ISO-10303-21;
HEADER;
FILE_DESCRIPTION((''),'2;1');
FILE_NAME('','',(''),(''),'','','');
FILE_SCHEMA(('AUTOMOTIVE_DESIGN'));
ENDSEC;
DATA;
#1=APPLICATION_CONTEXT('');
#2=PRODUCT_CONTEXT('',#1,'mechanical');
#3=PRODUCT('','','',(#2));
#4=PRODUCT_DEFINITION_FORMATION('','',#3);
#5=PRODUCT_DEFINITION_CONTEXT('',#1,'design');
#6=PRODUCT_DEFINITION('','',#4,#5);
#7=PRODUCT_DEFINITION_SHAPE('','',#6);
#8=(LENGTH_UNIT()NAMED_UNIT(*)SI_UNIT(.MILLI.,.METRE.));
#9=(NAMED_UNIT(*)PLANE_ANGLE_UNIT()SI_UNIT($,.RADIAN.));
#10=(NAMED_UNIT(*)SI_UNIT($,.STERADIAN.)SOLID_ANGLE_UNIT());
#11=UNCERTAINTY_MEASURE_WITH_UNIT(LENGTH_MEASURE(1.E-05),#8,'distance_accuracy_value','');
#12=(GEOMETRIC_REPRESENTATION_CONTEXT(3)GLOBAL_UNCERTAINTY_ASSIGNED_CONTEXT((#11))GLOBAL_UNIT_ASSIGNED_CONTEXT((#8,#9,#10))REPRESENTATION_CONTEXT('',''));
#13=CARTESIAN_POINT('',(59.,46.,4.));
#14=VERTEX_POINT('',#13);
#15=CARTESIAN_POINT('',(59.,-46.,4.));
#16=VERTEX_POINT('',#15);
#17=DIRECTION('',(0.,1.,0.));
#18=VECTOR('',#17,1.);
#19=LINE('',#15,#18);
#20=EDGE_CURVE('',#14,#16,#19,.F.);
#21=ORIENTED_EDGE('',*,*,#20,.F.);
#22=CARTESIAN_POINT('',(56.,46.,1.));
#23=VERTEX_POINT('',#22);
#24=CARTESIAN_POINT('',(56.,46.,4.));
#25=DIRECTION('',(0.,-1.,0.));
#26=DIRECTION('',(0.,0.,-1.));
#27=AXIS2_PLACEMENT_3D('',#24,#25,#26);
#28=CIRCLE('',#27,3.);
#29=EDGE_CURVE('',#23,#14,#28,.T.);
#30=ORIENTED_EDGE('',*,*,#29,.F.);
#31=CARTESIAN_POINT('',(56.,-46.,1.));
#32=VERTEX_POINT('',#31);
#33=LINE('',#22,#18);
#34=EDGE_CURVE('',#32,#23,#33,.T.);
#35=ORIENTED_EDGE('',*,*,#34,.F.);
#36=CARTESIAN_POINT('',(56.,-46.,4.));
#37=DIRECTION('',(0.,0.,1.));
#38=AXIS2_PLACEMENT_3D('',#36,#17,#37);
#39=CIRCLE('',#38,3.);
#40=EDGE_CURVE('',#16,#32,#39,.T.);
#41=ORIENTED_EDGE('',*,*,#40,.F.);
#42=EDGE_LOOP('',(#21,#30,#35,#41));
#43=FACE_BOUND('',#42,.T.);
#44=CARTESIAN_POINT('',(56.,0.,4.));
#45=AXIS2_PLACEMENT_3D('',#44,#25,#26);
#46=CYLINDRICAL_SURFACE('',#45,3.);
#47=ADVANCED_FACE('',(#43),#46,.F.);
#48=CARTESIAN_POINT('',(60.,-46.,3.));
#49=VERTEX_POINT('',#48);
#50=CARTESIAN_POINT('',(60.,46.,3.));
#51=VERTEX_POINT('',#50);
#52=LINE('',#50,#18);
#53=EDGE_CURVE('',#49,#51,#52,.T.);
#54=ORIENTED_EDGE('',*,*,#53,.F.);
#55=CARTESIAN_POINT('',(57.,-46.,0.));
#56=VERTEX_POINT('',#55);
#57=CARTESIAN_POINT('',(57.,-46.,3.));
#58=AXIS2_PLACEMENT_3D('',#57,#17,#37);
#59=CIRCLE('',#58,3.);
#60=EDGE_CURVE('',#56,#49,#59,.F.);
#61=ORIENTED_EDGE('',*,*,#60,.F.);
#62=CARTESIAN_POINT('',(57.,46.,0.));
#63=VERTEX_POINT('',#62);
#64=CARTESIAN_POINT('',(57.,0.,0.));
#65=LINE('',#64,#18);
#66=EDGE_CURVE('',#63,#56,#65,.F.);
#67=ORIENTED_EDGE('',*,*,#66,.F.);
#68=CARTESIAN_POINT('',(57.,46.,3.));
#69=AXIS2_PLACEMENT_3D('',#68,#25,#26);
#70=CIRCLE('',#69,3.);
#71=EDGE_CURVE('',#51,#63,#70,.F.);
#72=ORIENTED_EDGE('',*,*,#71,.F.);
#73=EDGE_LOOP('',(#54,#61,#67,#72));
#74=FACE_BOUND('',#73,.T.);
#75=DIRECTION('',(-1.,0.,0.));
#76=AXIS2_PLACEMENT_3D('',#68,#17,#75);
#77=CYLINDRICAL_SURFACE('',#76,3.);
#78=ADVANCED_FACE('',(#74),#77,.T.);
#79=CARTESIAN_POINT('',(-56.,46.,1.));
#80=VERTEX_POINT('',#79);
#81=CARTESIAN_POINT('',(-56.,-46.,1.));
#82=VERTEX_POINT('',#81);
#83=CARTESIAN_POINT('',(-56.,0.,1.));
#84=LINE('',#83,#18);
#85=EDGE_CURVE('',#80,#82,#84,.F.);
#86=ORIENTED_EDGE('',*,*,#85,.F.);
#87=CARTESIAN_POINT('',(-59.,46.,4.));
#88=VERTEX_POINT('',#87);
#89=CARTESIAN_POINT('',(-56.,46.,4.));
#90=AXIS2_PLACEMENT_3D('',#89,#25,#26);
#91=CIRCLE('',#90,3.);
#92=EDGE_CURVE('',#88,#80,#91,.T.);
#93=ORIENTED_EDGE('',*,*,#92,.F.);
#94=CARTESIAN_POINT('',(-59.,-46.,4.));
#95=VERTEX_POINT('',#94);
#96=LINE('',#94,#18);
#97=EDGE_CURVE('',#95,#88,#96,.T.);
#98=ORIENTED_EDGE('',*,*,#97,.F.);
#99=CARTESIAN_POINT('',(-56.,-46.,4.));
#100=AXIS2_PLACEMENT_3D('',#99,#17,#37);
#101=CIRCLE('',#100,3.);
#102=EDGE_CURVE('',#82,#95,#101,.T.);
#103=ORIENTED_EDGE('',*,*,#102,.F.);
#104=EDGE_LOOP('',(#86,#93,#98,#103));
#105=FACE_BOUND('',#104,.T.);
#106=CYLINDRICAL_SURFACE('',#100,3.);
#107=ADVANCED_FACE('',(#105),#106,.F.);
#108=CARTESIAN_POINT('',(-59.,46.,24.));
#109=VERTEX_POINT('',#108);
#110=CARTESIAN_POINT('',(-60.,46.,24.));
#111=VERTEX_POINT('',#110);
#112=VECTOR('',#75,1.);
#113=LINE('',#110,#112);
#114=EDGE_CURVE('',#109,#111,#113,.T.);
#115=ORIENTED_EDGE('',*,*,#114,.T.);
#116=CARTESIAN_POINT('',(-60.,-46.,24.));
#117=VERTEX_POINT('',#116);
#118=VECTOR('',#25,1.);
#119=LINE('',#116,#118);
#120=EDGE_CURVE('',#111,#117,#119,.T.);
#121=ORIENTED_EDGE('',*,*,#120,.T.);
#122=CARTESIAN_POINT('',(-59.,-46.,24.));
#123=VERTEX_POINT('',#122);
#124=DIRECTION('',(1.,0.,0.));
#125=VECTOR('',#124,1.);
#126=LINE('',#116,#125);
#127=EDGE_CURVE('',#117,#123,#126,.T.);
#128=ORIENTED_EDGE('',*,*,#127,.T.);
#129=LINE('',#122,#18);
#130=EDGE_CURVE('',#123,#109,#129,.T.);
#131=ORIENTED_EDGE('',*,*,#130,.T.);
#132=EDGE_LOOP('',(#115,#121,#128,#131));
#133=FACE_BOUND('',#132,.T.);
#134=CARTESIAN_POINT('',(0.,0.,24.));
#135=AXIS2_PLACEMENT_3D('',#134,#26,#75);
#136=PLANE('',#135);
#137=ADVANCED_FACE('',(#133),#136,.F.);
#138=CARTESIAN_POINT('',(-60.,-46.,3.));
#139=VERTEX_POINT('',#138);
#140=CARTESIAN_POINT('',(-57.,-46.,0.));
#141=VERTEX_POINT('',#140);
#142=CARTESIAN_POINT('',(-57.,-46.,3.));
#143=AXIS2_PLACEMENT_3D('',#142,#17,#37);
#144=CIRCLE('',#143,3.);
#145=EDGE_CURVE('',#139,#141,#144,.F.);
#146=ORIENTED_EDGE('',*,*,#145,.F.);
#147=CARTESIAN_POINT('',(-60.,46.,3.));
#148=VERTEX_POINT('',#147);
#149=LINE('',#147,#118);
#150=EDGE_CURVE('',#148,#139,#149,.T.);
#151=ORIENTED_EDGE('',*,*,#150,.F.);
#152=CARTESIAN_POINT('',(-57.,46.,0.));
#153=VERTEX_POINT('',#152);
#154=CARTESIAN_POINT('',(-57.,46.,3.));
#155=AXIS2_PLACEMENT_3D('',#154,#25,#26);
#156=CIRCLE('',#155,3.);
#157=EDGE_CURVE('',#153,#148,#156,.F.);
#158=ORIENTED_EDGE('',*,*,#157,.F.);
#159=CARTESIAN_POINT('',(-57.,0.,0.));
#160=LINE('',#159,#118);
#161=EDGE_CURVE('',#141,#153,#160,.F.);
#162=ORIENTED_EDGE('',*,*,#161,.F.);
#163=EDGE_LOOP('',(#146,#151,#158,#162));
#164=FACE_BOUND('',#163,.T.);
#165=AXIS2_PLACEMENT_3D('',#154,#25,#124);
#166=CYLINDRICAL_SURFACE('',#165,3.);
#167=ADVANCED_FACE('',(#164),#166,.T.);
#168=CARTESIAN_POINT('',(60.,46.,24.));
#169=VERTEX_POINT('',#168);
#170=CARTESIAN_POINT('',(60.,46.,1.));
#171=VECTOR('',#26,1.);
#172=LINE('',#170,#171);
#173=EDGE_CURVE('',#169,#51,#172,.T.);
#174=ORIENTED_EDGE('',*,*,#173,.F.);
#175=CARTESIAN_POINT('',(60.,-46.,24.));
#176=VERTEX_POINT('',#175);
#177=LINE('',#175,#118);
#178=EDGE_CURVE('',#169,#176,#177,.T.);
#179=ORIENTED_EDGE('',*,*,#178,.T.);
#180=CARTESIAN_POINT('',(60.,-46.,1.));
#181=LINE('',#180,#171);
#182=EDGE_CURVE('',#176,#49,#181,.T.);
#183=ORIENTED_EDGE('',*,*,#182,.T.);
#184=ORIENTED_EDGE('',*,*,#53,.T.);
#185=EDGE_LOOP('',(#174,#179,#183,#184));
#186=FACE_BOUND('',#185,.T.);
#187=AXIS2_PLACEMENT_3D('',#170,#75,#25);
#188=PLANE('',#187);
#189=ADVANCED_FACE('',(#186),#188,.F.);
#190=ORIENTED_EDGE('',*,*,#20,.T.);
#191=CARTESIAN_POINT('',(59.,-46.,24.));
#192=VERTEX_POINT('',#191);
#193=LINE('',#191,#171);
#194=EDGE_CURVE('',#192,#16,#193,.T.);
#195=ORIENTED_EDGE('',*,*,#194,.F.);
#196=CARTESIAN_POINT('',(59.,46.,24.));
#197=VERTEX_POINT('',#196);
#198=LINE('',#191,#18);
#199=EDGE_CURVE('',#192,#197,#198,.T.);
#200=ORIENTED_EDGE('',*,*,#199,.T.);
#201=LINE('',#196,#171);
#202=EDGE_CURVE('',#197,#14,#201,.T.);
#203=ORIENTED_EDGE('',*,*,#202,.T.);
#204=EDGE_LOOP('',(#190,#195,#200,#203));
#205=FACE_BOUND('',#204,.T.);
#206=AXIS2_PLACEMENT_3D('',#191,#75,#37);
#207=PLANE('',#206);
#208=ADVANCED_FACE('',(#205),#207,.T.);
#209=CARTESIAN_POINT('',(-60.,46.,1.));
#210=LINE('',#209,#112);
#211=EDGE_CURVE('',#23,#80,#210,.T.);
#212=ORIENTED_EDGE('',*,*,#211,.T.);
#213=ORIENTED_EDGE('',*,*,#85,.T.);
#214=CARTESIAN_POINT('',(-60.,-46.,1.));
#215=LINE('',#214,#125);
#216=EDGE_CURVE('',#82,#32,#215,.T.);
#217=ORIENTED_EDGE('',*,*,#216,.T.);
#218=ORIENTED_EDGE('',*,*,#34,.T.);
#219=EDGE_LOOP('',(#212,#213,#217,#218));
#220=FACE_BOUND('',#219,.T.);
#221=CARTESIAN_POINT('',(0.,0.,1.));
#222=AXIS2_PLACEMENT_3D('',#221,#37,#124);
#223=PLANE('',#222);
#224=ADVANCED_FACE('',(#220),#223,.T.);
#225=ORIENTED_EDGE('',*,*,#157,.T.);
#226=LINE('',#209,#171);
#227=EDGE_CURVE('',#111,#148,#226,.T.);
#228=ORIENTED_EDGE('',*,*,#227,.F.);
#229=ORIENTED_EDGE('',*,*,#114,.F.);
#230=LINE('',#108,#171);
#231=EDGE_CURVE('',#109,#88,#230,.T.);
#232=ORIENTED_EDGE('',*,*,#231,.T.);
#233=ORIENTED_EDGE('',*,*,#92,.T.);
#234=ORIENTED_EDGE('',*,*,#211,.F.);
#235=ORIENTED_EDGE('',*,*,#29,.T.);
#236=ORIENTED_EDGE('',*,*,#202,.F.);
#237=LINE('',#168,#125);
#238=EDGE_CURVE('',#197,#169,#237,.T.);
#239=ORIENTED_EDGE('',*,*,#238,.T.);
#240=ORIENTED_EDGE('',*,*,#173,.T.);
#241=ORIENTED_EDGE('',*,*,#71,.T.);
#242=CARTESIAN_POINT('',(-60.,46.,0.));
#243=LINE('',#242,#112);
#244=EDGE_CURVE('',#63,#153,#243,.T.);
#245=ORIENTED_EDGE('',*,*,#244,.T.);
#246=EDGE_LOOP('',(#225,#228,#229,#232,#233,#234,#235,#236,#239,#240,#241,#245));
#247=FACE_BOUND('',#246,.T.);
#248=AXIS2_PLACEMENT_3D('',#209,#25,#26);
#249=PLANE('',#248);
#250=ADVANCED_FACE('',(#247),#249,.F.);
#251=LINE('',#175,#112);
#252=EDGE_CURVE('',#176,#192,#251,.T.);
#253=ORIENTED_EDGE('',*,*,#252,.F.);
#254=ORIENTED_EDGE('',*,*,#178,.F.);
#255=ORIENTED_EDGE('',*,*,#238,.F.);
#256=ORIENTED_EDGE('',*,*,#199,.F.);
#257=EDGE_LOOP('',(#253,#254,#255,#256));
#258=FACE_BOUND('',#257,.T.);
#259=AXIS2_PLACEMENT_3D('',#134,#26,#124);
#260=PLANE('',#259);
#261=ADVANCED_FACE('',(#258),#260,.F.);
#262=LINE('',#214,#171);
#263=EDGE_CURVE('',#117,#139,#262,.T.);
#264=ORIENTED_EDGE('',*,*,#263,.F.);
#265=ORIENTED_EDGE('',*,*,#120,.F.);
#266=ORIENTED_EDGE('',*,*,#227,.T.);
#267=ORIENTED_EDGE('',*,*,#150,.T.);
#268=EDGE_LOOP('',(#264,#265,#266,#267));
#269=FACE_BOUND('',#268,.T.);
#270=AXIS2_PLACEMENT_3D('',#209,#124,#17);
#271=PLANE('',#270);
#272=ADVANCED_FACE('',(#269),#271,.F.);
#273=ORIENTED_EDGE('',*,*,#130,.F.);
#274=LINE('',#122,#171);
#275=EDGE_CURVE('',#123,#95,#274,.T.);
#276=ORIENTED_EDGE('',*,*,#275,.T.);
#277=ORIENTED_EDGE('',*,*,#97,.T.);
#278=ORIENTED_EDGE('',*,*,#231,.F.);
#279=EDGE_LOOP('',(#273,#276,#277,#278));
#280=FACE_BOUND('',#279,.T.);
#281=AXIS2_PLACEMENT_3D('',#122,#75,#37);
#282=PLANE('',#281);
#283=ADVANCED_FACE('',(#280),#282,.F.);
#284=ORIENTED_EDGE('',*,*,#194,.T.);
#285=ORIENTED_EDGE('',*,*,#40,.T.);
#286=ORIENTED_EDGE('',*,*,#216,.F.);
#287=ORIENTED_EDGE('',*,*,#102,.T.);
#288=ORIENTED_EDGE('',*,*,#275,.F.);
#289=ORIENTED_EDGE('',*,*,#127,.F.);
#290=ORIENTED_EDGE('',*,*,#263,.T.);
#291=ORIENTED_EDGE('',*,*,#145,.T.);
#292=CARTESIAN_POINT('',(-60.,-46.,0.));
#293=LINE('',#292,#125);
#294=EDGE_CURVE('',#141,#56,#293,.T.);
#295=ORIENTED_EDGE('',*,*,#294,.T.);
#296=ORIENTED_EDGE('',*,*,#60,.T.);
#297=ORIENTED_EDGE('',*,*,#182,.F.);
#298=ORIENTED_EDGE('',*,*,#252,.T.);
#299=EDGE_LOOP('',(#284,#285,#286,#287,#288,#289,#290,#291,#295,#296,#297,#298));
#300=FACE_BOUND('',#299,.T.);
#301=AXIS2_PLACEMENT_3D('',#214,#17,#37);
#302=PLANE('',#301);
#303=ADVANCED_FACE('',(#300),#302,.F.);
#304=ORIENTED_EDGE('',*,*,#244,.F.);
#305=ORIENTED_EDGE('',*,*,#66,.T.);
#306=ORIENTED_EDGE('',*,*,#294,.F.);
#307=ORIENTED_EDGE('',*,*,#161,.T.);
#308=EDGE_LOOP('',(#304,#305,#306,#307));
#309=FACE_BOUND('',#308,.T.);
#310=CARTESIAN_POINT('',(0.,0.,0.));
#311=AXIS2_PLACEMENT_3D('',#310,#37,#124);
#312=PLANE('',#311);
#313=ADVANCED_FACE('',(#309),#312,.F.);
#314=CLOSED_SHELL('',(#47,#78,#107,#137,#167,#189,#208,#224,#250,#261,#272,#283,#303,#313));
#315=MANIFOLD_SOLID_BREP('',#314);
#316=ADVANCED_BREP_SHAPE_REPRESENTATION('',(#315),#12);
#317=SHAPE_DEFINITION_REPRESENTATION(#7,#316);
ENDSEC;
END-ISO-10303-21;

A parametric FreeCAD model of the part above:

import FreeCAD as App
import Part
import Sketcher

V = App.Vector
Q = App.Units.Quantity


def edges_at(feature, points):
    """Names of the edges that pass closest to the given points."""
    edges = feature.Shape.Edges
    near = lambda p: min(range(len(edges)), key=lambda i: edges[i].distToShape(Part.Vertex(*p))[0])
    return sorted({f"Edge{near(p) + 1}" for p in points})

doc = App.newDocument("Part")
body = doc.addObject("PartDesign::Body", "Body")

sketch1 = body.newObject("Sketcher::SketchObject", "Sketch")
sketch1.AttachmentSupport = (doc.getObject("XY_Plane"), [""])
sketch1.MapMode = "FlatFace"
sketch1.addGeometry(Part.LineSegment(V(-60, 46, 0), V(-60, -46, 0)), False)
sketch1.addGeometry(Part.LineSegment(V(-60, -46, 0), V(60, -46, 0)), False)
sketch1.addGeometry(Part.LineSegment(V(60, -46, 0), V(60, 46, 0)), False)
sketch1.addGeometry(Part.LineSegment(V(60, 46, 0), V(-60, 46, 0)), False)
sketch1.addConstraint(Sketcher.Constraint("Coincident", 0, 2, 1, 1))
sketch1.addConstraint(Sketcher.Constraint("Coincident", 1, 2, 2, 1))
sketch1.addConstraint(Sketcher.Constraint("Coincident", 2, 2, 3, 1))
sketch1.addConstraint(Sketcher.Constraint("Coincident", 3, 2, 0, 1))
sketch1.addConstraint(Sketcher.Constraint("Vertical", 0))
sketch1.addConstraint(Sketcher.Constraint("Horizontal", 1))
sketch1.addConstraint(Sketcher.Constraint("Vertical", 2))
sketch1.addConstraint(Sketcher.Constraint("Horizontal", 3))
sketch1.addConstraint(Sketcher.Constraint("Symmetric", 0, 2, 2, 2, -1, 1))
sketch1.addConstraint(Sketcher.Constraint("DistanceX", 1, 1, 1, 2, Q("120 mm")))
sketch1.addConstraint(Sketcher.Constraint("DistanceY", 0, 2, 0, 1, Q("92 mm")))
pad1 = body.newObject("PartDesign::Pad", "Pad")
pad1.Profile = sketch1
pad1.Length = 1

sketch2 = body.newObject("Sketcher::SketchObject", "Sketch001")
sketch2.AttachmentSupport = (doc.getObject("XY_Plane"), [""])
sketch2.MapMode = "FlatFace"
sketch2.AttachmentOffset = App.Placement(V(0, 0, 1), App.Rotation())
sketch2.addGeometry(Part.LineSegment(V(-60, 46, 0), V(-60, -46, 0)), False)
sketch2.addGeometry(Part.LineSegment(V(-60, -46, 0), V(-59, -46, 0)), False)
sketch2.addGeometry(Part.LineSegment(V(-59, -46, 0), V(-59, 46, 0)), False)
sketch2.addGeometry(Part.LineSegment(V(-59, 46, 0), V(-60, 46, 0)), False)
sketch2.addConstraint(Sketcher.Constraint("Coincident", 0, 2, 1, 1))
sketch2.addConstraint(Sketcher.Constraint("Coincident", 1, 2, 2, 1))
sketch2.addConstraint(Sketcher.Constraint("Coincident", 2, 2, 3, 1))
sketch2.addConstraint(Sketcher.Constraint("Coincident", 3, 2, 0, 1))
sketch2.addConstraint(Sketcher.Constraint("Vertical", 0))
sketch2.addConstraint(Sketcher.Constraint("Horizontal", 1))
sketch2.addConstraint(Sketcher.Constraint("Vertical", 2))
sketch2.addConstraint(Sketcher.Constraint("Horizontal", 3))
sketch2.addConstraint(Sketcher.Constraint("DistanceX", 1, 1, 1, 2, Q("1 mm")))
sketch2.addConstraint(Sketcher.Constraint("DistanceY", 0, 2, 0, 1, Q("92 mm")))
sketch2.addConstraint(Sketcher.Constraint("DistanceX", 0, 2, -1, 1, Q("60 mm")))
sketch2.addConstraint(Sketcher.Constraint("DistanceY", 0, 2, -1, 1, Q("46 mm")))
pad2 = body.newObject("PartDesign::Pad", "Pad001")
pad2.Profile = sketch2
pad2.Length = 23
doc.recompute()

fillet = body.newObject("PartDesign::Fillet", "Fillet")
fillet.Base = (pad2, edges_at(pad2, [(-60, 0, 0)]))
fillet.Radius = 3
doc.recompute()

fillet2 = body.newObject("PartDesign::Fillet", "Fillet001")
fillet2.Base = (fillet, edges_at(fillet, [(-59, 0, 1)]))
fillet2.Radius = 3
doc.recompute()

mirrored = body.newObject("PartDesign::Mirrored", "Mirrored")
mirrored.Originals = [pad2]
mirrored.MirrorPlane = (doc.getObject("YZ_Plane"), [""])
body.Tip = mirrored
doc.recompute()

fillet3 = body.newObject("PartDesign::Fillet", "Fillet002")
fillet3.Base = (mirrored, edges_at(mirrored, [(59, 0, 1), (60, 0, 0)]))
fillet3.Radius = 3

doc.recompute()
